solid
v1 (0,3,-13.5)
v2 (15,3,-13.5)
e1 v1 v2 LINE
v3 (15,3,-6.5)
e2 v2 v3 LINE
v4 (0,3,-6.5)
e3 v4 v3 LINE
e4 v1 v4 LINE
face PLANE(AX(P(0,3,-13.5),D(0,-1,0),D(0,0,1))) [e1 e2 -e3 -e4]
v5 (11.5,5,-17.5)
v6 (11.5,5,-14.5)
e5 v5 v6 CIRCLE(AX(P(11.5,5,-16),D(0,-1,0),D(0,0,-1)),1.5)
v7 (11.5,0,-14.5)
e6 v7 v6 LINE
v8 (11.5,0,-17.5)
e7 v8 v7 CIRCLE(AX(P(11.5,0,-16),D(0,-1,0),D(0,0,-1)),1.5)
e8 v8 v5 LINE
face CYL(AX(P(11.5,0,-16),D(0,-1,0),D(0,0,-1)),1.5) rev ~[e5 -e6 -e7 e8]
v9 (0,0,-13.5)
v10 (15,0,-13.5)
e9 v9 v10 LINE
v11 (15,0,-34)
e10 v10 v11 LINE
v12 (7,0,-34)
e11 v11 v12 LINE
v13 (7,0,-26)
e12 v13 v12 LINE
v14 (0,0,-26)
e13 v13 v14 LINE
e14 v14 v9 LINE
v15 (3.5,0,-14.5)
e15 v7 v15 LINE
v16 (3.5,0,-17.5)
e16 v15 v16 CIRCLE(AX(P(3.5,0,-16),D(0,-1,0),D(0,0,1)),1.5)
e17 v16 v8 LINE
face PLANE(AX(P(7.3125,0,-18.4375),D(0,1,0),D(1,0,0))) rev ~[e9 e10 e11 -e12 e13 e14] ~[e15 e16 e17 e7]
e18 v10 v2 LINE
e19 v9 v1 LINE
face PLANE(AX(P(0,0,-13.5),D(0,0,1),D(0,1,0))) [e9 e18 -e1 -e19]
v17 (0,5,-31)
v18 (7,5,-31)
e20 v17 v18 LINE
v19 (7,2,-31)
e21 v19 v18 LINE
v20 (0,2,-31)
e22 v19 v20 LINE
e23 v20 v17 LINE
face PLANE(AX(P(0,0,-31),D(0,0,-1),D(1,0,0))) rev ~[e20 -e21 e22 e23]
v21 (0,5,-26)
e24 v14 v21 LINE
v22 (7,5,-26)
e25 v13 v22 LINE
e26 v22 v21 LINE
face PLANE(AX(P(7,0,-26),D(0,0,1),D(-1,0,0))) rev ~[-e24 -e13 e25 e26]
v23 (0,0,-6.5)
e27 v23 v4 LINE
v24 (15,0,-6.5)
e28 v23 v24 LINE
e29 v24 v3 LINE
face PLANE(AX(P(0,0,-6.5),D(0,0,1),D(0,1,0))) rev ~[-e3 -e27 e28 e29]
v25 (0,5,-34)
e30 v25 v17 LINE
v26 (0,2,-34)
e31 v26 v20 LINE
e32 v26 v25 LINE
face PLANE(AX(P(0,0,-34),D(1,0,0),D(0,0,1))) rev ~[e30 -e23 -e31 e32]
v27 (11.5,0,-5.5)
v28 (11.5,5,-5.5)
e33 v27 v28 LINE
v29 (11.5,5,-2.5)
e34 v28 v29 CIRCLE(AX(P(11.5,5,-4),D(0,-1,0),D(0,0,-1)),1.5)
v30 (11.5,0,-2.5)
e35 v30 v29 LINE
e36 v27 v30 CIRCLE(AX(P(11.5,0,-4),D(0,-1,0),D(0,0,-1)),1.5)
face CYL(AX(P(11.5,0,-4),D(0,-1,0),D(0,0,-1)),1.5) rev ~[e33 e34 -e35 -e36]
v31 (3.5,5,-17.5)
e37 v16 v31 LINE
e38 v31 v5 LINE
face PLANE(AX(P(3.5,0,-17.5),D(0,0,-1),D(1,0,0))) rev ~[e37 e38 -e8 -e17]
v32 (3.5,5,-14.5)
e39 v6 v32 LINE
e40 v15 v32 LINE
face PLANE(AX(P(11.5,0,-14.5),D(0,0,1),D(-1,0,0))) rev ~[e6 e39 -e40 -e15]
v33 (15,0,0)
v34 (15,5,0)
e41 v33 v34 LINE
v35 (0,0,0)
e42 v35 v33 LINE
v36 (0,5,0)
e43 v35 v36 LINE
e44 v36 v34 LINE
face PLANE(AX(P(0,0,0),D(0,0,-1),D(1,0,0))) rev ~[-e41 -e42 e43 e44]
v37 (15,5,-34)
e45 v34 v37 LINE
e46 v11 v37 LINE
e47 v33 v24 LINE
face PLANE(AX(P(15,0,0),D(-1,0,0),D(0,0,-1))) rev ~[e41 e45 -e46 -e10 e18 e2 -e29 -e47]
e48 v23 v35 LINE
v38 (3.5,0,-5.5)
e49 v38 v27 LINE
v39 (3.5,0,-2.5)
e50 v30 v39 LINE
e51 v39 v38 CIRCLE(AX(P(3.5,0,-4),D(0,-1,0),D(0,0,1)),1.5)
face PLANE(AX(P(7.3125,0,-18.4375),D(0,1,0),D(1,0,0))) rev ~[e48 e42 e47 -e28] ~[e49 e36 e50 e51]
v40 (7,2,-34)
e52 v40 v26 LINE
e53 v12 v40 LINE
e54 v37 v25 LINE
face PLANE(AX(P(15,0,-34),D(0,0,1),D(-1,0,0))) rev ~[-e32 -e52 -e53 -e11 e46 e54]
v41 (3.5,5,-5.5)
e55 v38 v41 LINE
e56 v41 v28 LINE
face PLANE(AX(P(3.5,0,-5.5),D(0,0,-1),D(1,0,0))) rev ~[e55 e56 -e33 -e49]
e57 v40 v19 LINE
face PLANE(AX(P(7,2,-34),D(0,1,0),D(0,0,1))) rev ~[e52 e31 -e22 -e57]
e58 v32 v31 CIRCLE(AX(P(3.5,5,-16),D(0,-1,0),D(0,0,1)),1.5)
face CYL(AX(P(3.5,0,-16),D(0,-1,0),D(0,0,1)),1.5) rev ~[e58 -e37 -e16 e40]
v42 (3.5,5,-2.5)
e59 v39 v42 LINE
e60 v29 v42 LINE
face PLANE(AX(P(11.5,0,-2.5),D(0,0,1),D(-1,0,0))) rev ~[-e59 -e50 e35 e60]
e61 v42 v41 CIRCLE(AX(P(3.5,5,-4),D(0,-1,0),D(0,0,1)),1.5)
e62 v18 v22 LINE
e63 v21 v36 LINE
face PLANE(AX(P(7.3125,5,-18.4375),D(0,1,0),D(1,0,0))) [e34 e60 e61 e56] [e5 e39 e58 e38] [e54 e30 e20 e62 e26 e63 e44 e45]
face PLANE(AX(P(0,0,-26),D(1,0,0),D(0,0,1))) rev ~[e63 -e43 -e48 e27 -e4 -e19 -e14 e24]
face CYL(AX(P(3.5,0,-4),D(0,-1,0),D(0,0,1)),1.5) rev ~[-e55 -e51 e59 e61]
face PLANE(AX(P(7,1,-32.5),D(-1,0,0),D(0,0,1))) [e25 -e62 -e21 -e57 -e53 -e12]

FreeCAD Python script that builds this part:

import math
import FreeCAD as App
import Part
import Sketcher

doc = App.newDocument("Part")
params = doc.addObject("Spreadsheet::Sheet", "Params")
for row, (alias, value) in enumerate([
    ("sketch1_radius", "1.5 mm"),
    ("sketch1_width", "15 mm"),
    ("sketch1_width2", "7 mm"),
    ("sketch1_width3", "8 mm"),
    ("sketch1_height", "3 mm"),
    ("pad1_length", "5 mm"),
    ("sketch2_width", "3 mm"),
    ("sketch2_height", "7 mm"),
    ("sketch3_width", "2 mm"),
    ("sketch3_height", "3 mm"),
    ("pocket2_length", "12 mm"),
], start=1):
    params.set(f"A{row}", alias)
    params.set(f"B{row}", "=" + value)
    params.setAlias(f"B{row}", alias)

body = doc.addObject("PartDesign::Body", "Body")

sketch1 = doc.addObject("Sketcher::SketchObject", "Sketch")
body.addObject(sketch1)
sketch1.AttachmentSupport = (doc.XZ_Plane, [""])
sketch1.MapMode = "FlatFace"
sketch1.addGeometry(Part.LineSegment(App.Vector(15, -34, 0), App.Vector(0, -34, 0)), False)
sketch1.addGeometry(Part.LineSegment(App.Vector(0, -34, 0), App.Vector(0, -31, 0)), False)
sketch1.addGeometry(Part.LineSegment(App.Vector(0, -31, 0), App.Vector(7, -31, 0)), False)
sketch1.addGeometry(Part.LineSegment(App.Vector(7, -31, 0), App.Vector(7, -26, 0)), False)
sketch1.addGeometry(Part.LineSegment(App.Vector(7, -26, 0), App.Vector(0, -26, 0)), False)
sketch1.addGeometry(Part.LineSegment(App.Vector(0, -26, 0), App.Vector(0, 0, 0)), False)
sketch1.addGeometry(Part.LineSegment(App.Vector(0, 0, 0), App.Vector(15, 0, 0)), False)
sketch1.addGeometry(Part.LineSegment(App.Vector(15, 0, 0), App.Vector(15, -34, 0)), False)
sketch1.addGeometry(Part.LineSegment(App.Vector(11.5, -2.5, 0), App.Vector(3.5, -2.5, 0)), False)
sketch1.addGeometry(Part.ArcOfCircle(Part.Circle(App.Vector(3.5, -4, 0), App.Vector(0, 0, 1), 1.5), math.radians(90), math.radians(270)), False)
sketch1.addGeometry(Part.LineSegment(App.Vector(3.5, -5.5, 0), App.Vector(11.5, -5.5, 0)), False)
sketch1.addGeometry(Part.ArcOfCircle(Part.Circle(App.Vector(11.5, -4, 0), App.Vector(0, 0, 1), 1.5), math.radians(-90), math.radians(90)), False)
sketch1.addGeometry(Part.LineSegment(App.Vector(11.5, -14.5, 0), App.Vector(3.5, -14.5, 0)), False)
sketch1.addGeometry(Part.ArcOfCircle(Part.Circle(App.Vector(3.5, -16, 0), App.Vector(0, 0, 1), 1.5), math.radians(90), math.radians(270)), False)
sketch1.addGeometry(Part.LineSegment(App.Vector(3.5, -17.5, 0), App.Vector(11.5, -17.5, 0)), False)
sketch1.addGeometry(Part.ArcOfCircle(Part.Circle(App.Vector(11.5, -16, 0), App.Vector(0, 0, 1), 1.5), math.radians(-90), math.radians(90)), False)
sketch1.addConstraint(Sketcher.Constraint("Coincident", 0, 2, 1, 1))
sketch1.addConstraint(Sketcher.Constraint("Coincident", 1, 2, 2, 1))
sketch1.addConstraint(Sketcher.Constraint("Coincident", 2, 2, 3, 1))
sketch1.addConstraint(Sketcher.Constraint("Coincident", 3, 2, 4, 1))
sketch1.addConstraint(Sketcher.Constraint("Coincident", 4, 2, 5, 1))
sketch1.addConstraint(Sketcher.Constraint("Coincident", 5, 2, 6, 1))
sketch1.addConstraint(Sketcher.Constraint("Coincident", 6, 2, 7, 1))
sketch1.addConstraint(Sketcher.Constraint("Coincident", 7, 2, 0, 1))
sketch1.addConstraint(Sketcher.Constraint("Tangent", 8, 2, 9, 1))
sketch1.addConstraint(Sketcher.Constraint("Tangent", 9, 2, 10, 1))
sketch1.addConstraint(Sketcher.Constraint("Tangent", 10, 2, 11, 1))
sketch1.addConstraint(Sketcher.Constraint("Tangent", 11, 2, 8, 1))
sketch1.addConstraint(Sketcher.Constraint("Tangent", 12, 2, 13, 1))
sketch1.addConstraint(Sketcher.Constraint("Tangent", 13, 2, 14, 1))
sketch1.addConstraint(Sketcher.Constraint("Tangent", 14, 2, 15, 1))
sketch1.addConstraint(Sketcher.Constraint("Tangent", 15, 2, 12, 1))
sketch1.addConstraint(Sketcher.Constraint("Horizontal", 0))
sketch1.addConstraint(Sketcher.Constraint("Vertical", 1))
sketch1.addConstraint(Sketcher.Constraint("Horizontal", 2))
sketch1.addConstraint(Sketcher.Constraint("Vertical", 3))
sketch1.addConstraint(Sketcher.Constraint("Horizontal", 4))
sketch1.addConstraint(Sketcher.Constraint("Vertical", 5))
sketch1.addConstraint(Sketcher.Constraint("Horizontal", 6))
sketch1.addConstraint(Sketcher.Constraint("Vertical", 7))
sketch1.addConstraint(Sketcher.Constraint("Horizontal", 8))
sketch1.addConstraint(Sketcher.Constraint("Horizontal", 10))
sketch1.addConstraint(Sketcher.Constraint("Horizontal", 12))
sketch1.addConstraint(Sketcher.Constraint("Horizontal", 14))
sketch1.addConstraint(Sketcher.Constraint("Coincident", 5, 2, -1, 1))
sketch1.addConstraint(Sketcher.Constraint("Equal", 11, 13))
sketch1.addConstraint(Sketcher.Constraint("PointOnObject", 0, 2, -2))
sketch1.addConstraint(Sketcher.Constraint("Vertical", 9, 3, 13, 3))
sketch1.addConstraint(Sketcher.Constraint("Vertical", 11, 3, 15, 3))
sketch1.addConstraint(Sketcher.Constraint("Radius", 9, 1.5))
sketch1.addConstraint(Sketcher.Constraint("DistanceX", 0, 2, 0, 1, 15.0))
sketch1.addConstraint(Sketcher.Constraint("DistanceX", 2, 1, 2, 2, 7.0))
sketch1.addConstraint(Sketcher.Constraint("DistanceX", 8, 2, 8, 1, 8.0))
sketch1.addConstraint(Sketcher.Constraint("DistanceY", 1, 1, 1, 2, 3.0))
sketch1.addConstraint(Sketcher.Constraint("DistanceY", 3, 1, 3, 2, 5.0))
sketch1.addConstraint(Sketcher.Constraint("DistanceY", 5, 1, 5, 2, 26.0))
sketch1.addConstraint(Sketcher.Constraint("DistanceY", 9, 3, -1, 1, 4.0))
sketch1.addConstraint(Sketcher.Constraint("DistanceY", 13, 3, -1, 1, 16.0))
sketch1.addConstraint(Sketcher.Constraint("DistanceX", -1, 1, 9, 3, 3.5))
sketch1.setExpression("Constraints[33]", "Params.sketch1_radius")
sketch1.setExpression("Constraints[34]", "Params.sketch1_width")
sketch1.setExpression("Constraints[35]", "Params.sketch1_width2")
sketch1.setExpression("Constraints[36]", "Params.sketch1_width3")
sketch1.setExpression("Constraints[37]", "Params.sketch1_height")
pad1 = doc.addObject("PartDesign::Pad", "Pad")
body.addObject(pad1)
pad1.Profile = sketch1
pad1.setExpression("Length", "Params.pad1_length")
pad1.Reversed = True

sketch2 = doc.addObject("Sketcher::SketchObject", "Sketch001")
body.addObject(sketch2)
sketch2.AttachmentSupport = (doc.YZ_Plane, [""])
sketch2.MapMode = "FlatFace"
sketch2.addGeometry(Part.LineSegment(App.Vector(3, -13.5, 0), App.Vector(0, -13.5, 0)), False)
sketch2.addGeometry(Part.LineSegment(App.Vector(0, -13.5, 0), App.Vector(0, -6.5, 0)), False)
sketch2.addGeometry(Part.LineSegment(App.Vector(0, -6.5, 0), App.Vector(3, -6.5, 0)), False)
sketch2.addGeometry(Part.LineSegment(App.Vector(3, -6.5, 0), App.Vector(3, -13.5, 0)), False)
sketch2.addConstraint(Sketcher.Constraint("Coincident", 0, 2, 1, 1))
sketch2.addConstraint(Sketcher.Constraint("Coincident", 1, 2, 2, 1))
sketch2.addConstraint(Sketcher.Constraint("Coincident", 2, 2, 3, 1))
sketch2.addConstraint(Sketcher.Constraint("Coincident", 3, 2, 0, 1))
sketch2.addConstraint(Sketcher.Constraint("Horizontal", 0))
sketch2.addConstraint(Sketcher.Constraint("Vertical", 1))
sketch2.addConstraint(Sketcher.Constraint("Horizontal", 2))
sketch2.addConstraint(Sketcher.Constraint("Vertical", 3))
sketch2.addConstraint(Sketcher.Constraint("PointOnObject", 0, 2, -2))
sketch2.addConstraint(Sketcher.Constraint("DistanceX", 0, 2, 0, 1, 3.0))
sketch2.addConstraint(Sketcher.Constraint("DistanceY", 1, 1, 1, 2, 7.0))
sketch2.addConstraint(Sketcher.Constraint("DistanceY", 0, 2, -1, 1, 13.5))
sketch2.setExpression("Constraints[9]", "Params.sketch2_width")
sketch2.setExpression("Constraints[10]", "Params.sketch2_height")
pocket1 = doc.addObject("PartDesign::Pocket", "Pocket")
body.addObject(pocket1)
pocket1.Profile = sketch2
pocket1.Type = "ThroughAll"
pocket1.Reversed = True

sketch3 = doc.addObject("Sketcher::SketchObject", "Sketch002")
body.addObject(sketch3)
sketch3.AttachmentSupport = (doc.YZ_Plane, [""])
sketch3.MapMode = "FlatFace"
sketch3.AttachmentOffset = App.Placement(App.Vector(0, 0, 7), App.Rotation())
sketch3.addGeometry(Part.LineSegment(App.Vector(2, -34, 0), App.Vector(0, -34, 0)), False)
sketch3.addGeometry(Part.LineSegment(App.Vector(0, -34, 0), App.Vector(0, -31, 0)), False)
sketch3.addGeometry(Part.LineSegment(App.Vector(0, -31, 0), App.Vector(2, -31, 0)), False)
sketch3.addGeometry(Part.LineSegment(App.Vector(2, -31, 0), App.Vector(2, -34, 0)), False)
sketch3.addConstraint(Sketcher.Constraint("Coincident", 0, 2, 1, 1))
sketch3.addConstraint(Sketcher.Constraint("Coincident", 1, 2, 2, 1))
sketch3.addConstraint(Sketcher.Constraint("Coincident", 2, 2, 3, 1))
sketch3.addConstraint(Sketcher.Constraint("Coincident", 3, 2, 0, 1))
sketch3.addConstraint(Sketcher.Constraint("Horizontal", 0))
sketch3.addConstraint(Sketcher.Constraint("Vertical", 1))
sketch3.addConstraint(Sketcher.Constraint("Horizontal", 2))
sketch3.addConstraint(Sketcher.Constraint("Vertical", 3))
sketch3.addConstraint(Sketcher.Constraint("PointOnObject", 0, 2, -2))
sketch3.addConstraint(Sketcher.Constraint("DistanceX", 0, 2, 0, 1, 2.0))
sketch3.addConstraint(Sketcher.Constraint("DistanceY", 1, 1, 1, 2, 3.0))
sketch3.addConstraint(Sketcher.Constraint("DistanceY", 0, 2, -1, 1, 34.0))
sketch3.setExpression("Constraints[9]", "Params.sketch3_width")
sketch3.setExpression("Constraints[10]", "Params.sketch3_height")
pocket2 = doc.addObject("PartDesign::Pocket", "Pocket001")
body.addObject(pocket2)
pocket2.Profile = sketch3
pocket2.setExpression("Length", "Params.pocket2_length")

doc.recompute()
